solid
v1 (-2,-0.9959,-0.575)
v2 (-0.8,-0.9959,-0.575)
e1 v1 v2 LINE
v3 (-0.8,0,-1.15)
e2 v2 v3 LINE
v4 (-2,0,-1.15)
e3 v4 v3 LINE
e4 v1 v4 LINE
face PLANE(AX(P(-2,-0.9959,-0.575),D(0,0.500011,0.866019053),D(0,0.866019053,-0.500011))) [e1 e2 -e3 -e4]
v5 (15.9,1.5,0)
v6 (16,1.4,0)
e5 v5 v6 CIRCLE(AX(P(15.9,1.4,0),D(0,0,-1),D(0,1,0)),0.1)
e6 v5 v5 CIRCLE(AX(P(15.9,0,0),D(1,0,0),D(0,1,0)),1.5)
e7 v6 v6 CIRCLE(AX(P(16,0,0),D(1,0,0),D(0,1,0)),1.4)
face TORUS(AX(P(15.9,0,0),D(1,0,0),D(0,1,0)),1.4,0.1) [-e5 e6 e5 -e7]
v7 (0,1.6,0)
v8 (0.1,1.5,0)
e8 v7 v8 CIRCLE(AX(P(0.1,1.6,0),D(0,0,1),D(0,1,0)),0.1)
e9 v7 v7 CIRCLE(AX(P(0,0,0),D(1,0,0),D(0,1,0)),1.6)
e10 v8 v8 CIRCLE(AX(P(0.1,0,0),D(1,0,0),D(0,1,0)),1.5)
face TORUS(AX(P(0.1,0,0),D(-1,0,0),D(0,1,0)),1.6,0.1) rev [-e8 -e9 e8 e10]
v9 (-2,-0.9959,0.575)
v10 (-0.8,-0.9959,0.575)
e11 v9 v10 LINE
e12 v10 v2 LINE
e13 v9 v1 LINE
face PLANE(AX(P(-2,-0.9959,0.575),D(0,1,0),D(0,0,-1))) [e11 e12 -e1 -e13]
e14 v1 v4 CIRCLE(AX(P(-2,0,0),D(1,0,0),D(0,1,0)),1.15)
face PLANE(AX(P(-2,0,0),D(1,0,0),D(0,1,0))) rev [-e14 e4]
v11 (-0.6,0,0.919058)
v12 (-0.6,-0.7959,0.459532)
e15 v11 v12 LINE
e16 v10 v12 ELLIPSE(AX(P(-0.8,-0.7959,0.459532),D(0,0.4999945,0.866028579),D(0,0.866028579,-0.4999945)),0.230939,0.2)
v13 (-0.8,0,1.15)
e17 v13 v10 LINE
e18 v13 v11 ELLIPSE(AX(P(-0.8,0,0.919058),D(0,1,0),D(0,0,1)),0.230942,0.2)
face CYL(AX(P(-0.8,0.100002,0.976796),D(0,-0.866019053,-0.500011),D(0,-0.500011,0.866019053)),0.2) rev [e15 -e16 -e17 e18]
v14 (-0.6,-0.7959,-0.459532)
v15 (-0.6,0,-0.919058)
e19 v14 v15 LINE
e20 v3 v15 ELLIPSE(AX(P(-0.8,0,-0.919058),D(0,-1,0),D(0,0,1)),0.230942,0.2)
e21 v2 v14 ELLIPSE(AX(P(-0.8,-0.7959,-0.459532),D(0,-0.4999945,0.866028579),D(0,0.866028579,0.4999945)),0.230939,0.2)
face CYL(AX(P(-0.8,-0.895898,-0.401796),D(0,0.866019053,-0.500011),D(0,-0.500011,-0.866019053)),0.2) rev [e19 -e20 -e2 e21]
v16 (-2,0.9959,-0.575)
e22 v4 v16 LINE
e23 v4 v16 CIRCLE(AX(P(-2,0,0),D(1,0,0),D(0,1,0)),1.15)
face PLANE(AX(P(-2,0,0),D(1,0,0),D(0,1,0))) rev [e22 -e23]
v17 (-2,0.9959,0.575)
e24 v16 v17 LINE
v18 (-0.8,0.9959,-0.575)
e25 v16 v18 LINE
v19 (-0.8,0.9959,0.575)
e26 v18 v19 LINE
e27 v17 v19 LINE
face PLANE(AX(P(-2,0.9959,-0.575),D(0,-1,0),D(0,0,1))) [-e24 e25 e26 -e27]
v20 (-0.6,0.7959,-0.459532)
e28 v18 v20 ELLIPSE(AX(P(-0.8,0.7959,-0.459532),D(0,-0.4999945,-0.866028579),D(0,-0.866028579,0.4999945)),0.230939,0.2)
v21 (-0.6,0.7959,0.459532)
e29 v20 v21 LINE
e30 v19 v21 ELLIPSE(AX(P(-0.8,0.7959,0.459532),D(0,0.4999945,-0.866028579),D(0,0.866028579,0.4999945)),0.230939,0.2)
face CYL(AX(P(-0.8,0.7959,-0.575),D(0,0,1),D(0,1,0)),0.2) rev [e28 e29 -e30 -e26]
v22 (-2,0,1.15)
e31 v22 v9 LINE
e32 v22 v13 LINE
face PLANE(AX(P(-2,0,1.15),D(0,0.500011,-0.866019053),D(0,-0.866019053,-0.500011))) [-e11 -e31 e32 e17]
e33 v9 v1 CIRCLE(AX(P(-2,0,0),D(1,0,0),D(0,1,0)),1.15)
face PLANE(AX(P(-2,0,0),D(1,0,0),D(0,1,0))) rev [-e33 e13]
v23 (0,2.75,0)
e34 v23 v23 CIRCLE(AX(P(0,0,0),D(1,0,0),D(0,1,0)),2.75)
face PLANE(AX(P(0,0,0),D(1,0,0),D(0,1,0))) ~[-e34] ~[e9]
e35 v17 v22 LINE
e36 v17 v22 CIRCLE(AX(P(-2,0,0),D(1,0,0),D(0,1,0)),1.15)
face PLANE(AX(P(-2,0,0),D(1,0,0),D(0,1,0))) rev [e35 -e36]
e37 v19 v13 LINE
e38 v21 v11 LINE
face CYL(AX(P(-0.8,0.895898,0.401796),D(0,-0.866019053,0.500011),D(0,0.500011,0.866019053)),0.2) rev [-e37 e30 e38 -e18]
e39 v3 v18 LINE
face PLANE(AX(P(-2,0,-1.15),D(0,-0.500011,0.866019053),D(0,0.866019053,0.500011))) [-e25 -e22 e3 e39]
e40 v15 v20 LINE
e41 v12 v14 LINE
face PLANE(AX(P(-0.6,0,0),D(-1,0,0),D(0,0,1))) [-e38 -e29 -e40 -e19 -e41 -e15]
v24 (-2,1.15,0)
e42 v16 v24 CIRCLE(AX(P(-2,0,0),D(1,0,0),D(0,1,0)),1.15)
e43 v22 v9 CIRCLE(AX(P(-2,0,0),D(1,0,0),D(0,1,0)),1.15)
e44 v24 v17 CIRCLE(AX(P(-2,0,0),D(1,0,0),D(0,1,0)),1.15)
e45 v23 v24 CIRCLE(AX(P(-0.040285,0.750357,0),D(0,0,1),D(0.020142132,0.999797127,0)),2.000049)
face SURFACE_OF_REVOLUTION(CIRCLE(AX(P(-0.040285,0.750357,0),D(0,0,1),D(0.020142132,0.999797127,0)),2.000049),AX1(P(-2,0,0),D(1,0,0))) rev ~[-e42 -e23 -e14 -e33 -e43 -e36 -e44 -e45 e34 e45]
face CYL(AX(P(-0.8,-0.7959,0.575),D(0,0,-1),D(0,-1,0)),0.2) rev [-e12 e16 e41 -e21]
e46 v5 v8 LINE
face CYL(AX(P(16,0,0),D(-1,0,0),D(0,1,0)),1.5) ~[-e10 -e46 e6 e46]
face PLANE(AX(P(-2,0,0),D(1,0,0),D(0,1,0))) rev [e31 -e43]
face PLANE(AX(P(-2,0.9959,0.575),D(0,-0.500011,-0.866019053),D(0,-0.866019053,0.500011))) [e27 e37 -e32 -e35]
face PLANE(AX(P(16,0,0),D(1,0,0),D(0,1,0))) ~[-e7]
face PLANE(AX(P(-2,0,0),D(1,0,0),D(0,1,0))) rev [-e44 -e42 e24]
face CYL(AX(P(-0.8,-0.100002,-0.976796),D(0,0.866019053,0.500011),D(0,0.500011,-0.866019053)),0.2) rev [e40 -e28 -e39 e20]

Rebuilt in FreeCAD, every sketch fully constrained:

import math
import FreeCAD as App
import Part
import Sketcher


def edges_at(feature, points):
    """Names of the edges that pass closest to the given points."""
    edges = feature.Shape.Edges
    near = lambda p: min(range(len(edges)), key=lambda i: edges[i].distToShape(Part.Vertex(*p))[0])
    return sorted({f"Edge{near(p) + 1}" for p in points})

doc = App.newDocument("Part")
body = doc.addObject("PartDesign::Body", "Body")

# Sketch on XY plane
sketch1 = body.newObject("Sketcher::SketchObject", "Sketch")
sketch1.AttachmentSupport = (doc.getObject("XY_Plane"), [""])
sketch1.MapMode = "FlatFace"
sketch1.addGeometry([
    Part.LineSegment(App.Vector(16, 1.5, 0), App.Vector(0, 1.5, 0)),  # 0
    Part.LineSegment(App.Vector(0, 1.5, 0), App.Vector(0, 2.8, 0)),  # 1
    Part.ArcOfCircle(Part.Circle(App.Vector(0, 0.8, 0), App.Vector(0, 0, 1), 2), math.radians(89), math.radians(168)),  # 2
    Part.LineSegment(App.Vector(-2, 1.1, 0), App.Vector(-2, 0, 0)),  # 3
    Part.LineSegment(App.Vector(-2, 0, 0), App.Vector(16, 0, 0)),  # 4
    Part.LineSegment(App.Vector(16, 0, 0), App.Vector(16, 1.5, 0)),  # 5
], False)
sketch1.addConstraint([
    Sketcher.Constraint("Coincident", 0, 2, 1, 1),
    Sketcher.Constraint("Coincident", 1, 2, 2, 1),
    Sketcher.Constraint("Coincident", 2, 2, 3, 1),
    Sketcher.Constraint("Coincident", 3, 2, 4, 1),
    Sketcher.Constraint("Coincident", 4, 2, 5, 1),
    Sketcher.Constraint("Coincident", 5, 2, 0, 1),
    Sketcher.Constraint("Horizontal", 0),
    Sketcher.Constraint("Vertical", 1),
    Sketcher.Constraint("Vertical", 3),
    Sketcher.Constraint("Horizontal", 4),
    Sketcher.Constraint("Vertical", 5),
    Sketcher.Constraint("PointOnObject", 0, 2, -2),
    Sketcher.Constraint("PointOnObject", 3, 2, -1),
    Sketcher.Constraint("Radius", 2, 2.0),
    Sketcher.Constraint("DistanceX", 0, 2, 0, 1, 16.0),
    Sketcher.Constraint("DistanceY", 5, 1, 5, 2, 1.5),
    Sketcher.Constraint("DistanceX", 2, 2, -1, 1, 2.0),
    Sketcher.Constraint("DistanceY", 3, 2, 3, 1, 1.15),
    Sketcher.Constraint("DistanceY", -1, 1, 1, 2, 2.75),
])
revolution = body.newObject("PartDesign::Revolution", "Revolution")
revolution.Profile = sketch1
revolution.ReferenceAxis = (sketch1, ["H_Axis"])
revolution.Angle = 360

# Sketch on YZ plane
sketch2 = body.newObject("Sketcher::SketchObject", "Sketch001")
sketch2.AttachmentSupport = (doc.getObject("YZ_Plane"), [""])
sketch2.MapMode = "FlatFace"
sketch2.AttachmentOffset = App.Placement(App.Vector(0, 0, -2), App.Rotation())
sketch2.addGeometry([
    Part.LineSegment(App.Vector(-1, 0.6, 0), App.Vector(0, 1.1, 0)),  # 0
    Part.LineSegment(App.Vector(0, 1.1, 0), App.Vector(1, 0.6, 0)),  # 1
    Part.LineSegment(App.Vector(1, 0.6, 0), App.Vector(1, -0.6, 0)),  # 2
    Part.LineSegment(App.Vector(1, -0.6, 0), App.Vector(0, -1.1, 0)),  # 3
    Part.LineSegment(App.Vector(0, -1.1, 0), App.Vector(-1, -0.6, 0)),  # 4
    Part.LineSegment(App.Vector(-1, -0.6, 0), App.Vector(-1, 0.6, 0)),  # 5
], False)
sketch2.addConstraint([
    Sketcher.Constraint("Coincident", 0, 2, 1, 1),
    Sketcher.Constraint("Coincident", 1, 2, 2, 1),
    Sketcher.Constraint("Coincident", 2, 2, 3, 1),
    Sketcher.Constraint("Coincident", 3, 2, 4, 1),
    Sketcher.Constraint("Coincident", 4, 2, 5, 1),
    Sketcher.Constraint("Coincident", 5, 2, 0, 1),
    Sketcher.Constraint("Vertical", 2),
    Sketcher.Constraint("Vertical", 5),
    Sketcher.Constraint("Symmetric", 0, 2, 3, 2, -1, 1),
    Sketcher.Constraint("Symmetric", 1, 2, 4, 2, -1, 1),
    Sketcher.Constraint("PointOnObject", 0, 2, -2),
    Sketcher.Constraint("Parallel", 0, 3),
    Sketcher.Constraint("Horizontal", 2, 2, 4, 2),
    Sketcher.Constraint("DistanceY", 2, 2, 2, 1, 1.15),
    Sketcher.Constraint("Distance", 0, 1.15),
    Sketcher.Constraint("DistanceY", -1, 1, 0, 2, 1.15),
])
pocket1 = body.newObject("PartDesign::Pocket", "Pocket")
pocket1.Profile = sketch2
pocket1.Length = 1.4
pocket1.Reversed = True
doc.recompute()

fillet = body.newObject("PartDesign::Fillet", "Fillet")
fillet.Base = (pocket1, edges_at(pocket1, [
    (-0.6, 0.996, 0),
    (-0.6, 0.498, 0.863),
    (-0.6, 0.498, -0.863),
    (-0.6, -0.498, -0.863),
    (-0.6, -0.996, 0),
    (-0.6, -0.498, 0.863),
]))
fillet.Radius = 0.2
doc.recompute()

fillet2 = body.newObject("PartDesign::Fillet", "Fillet001")
fillet2.Base = (fillet, edges_at(fillet, [(0, -1.5, 0)]))
fillet2.Radius = 0.1
doc.recompute()

fillet3 = body.newObject("PartDesign::Fillet", "Fillet002")
fillet3.Base = (fillet2, edges_at(fillet2, [(16, -1.5, 0)]))
fillet3.Radius = 0.1

doc.recompute()
